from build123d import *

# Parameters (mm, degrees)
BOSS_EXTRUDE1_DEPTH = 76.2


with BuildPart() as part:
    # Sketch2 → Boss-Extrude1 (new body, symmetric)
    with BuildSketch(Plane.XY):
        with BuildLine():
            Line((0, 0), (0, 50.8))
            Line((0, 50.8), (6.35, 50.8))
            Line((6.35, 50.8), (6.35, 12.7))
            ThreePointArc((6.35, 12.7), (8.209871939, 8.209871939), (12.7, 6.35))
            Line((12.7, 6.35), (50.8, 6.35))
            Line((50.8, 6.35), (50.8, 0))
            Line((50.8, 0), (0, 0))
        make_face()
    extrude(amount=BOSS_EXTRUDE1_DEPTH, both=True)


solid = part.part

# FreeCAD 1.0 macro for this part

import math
import FreeCAD as App
import Part
import Sketcher
from FreeCAD import Vector
Q = App.Units.Quantity

doc = App.newDocument("Part")
body = doc.addObject("PartDesign::Body", "Body")

# Sketch on XY plane
sketch1 = body.newObject("Sketcher::SketchObject", "Sketch")
sketch1.AttachmentSupport = (doc.getObject("XY_Plane"), [""])
sketch1.MapMode = "FlatFace"
sketch1.addGeometry([
    Part.LineSegment(Vector(0, 51, 0), Vector(0, 0, 0)),  # 0
    Part.LineSegment(Vector(0, 0, 0), Vector(51, 0, 0)),  # 1
    Part.LineSegment(Vector(51, 0, 0), Vector(51, 6, 0)),  # 2
    Part.LineSegment(Vector(51, 6, 0), Vector(13, 6, 0)),  # 3
    Part.ArcOfCircle(Part.Circle(Vector(13, 13, 0), Vector(0, 0, 1), 6), math.radians(180), math.radians(270)),  # 4
    Part.LineSegment(Vector(6, 13, 0), Vector(6, 51, 0)),  # 5
    Part.LineSegment(Vector(6, 51, 0), Vector(0, 51, 0)),  # 6
], False)
sketch1.addConstraint([
    Sketcher.Constraint("Coincident", 0, 2, 1, 1),
    Sketcher.Constraint("Coincident", 1, 2, 2, 1),
    Sketcher.Constraint("Coincident", 2, 2, 3, 1),
    Sketcher.Constraint("Tangent", 3, 2, 4, 2),
    Sketcher.Constraint("Tangent", 4, 1, 5, 1),
    Sketcher.Constraint("Coincident", 5, 2, 6, 1),
    Sketcher.Constraint("Coincident", 6, 2, 0, 1),
    Sketcher.Constraint("Vertical", 0),
    Sketcher.Constraint("Horizontal", 1),
    Sketcher.Constraint("Vertical", 2),
    Sketcher.Constraint("Horizontal", 3),
    Sketcher.Constraint("Vertical", 5),
    Sketcher.Constraint("Horizontal", 6),
    Sketcher.Constraint("Coincident", 0, 2, -1, 1),
    Sketcher.Constraint("Equal", 1, 0),
    Sketcher.Constraint("Equal", 6, 2),
    Sketcher.Constraint("DistanceX", 1, 1, 1, 2, Q("2 in")),
    Sketcher.Constraint("Radius", 4, Q("0.25 in")),
    Sketcher.Constraint("DistanceX", 3, 2, 3, 1, Q("1.5 in")),
])
pad1 = body.newObject("PartDesign::Pad", "Pad")
pad1.Profile = sketch1
pad1.Length = Q("6 in")
pad1.Midplane = True

doc.recompute()
